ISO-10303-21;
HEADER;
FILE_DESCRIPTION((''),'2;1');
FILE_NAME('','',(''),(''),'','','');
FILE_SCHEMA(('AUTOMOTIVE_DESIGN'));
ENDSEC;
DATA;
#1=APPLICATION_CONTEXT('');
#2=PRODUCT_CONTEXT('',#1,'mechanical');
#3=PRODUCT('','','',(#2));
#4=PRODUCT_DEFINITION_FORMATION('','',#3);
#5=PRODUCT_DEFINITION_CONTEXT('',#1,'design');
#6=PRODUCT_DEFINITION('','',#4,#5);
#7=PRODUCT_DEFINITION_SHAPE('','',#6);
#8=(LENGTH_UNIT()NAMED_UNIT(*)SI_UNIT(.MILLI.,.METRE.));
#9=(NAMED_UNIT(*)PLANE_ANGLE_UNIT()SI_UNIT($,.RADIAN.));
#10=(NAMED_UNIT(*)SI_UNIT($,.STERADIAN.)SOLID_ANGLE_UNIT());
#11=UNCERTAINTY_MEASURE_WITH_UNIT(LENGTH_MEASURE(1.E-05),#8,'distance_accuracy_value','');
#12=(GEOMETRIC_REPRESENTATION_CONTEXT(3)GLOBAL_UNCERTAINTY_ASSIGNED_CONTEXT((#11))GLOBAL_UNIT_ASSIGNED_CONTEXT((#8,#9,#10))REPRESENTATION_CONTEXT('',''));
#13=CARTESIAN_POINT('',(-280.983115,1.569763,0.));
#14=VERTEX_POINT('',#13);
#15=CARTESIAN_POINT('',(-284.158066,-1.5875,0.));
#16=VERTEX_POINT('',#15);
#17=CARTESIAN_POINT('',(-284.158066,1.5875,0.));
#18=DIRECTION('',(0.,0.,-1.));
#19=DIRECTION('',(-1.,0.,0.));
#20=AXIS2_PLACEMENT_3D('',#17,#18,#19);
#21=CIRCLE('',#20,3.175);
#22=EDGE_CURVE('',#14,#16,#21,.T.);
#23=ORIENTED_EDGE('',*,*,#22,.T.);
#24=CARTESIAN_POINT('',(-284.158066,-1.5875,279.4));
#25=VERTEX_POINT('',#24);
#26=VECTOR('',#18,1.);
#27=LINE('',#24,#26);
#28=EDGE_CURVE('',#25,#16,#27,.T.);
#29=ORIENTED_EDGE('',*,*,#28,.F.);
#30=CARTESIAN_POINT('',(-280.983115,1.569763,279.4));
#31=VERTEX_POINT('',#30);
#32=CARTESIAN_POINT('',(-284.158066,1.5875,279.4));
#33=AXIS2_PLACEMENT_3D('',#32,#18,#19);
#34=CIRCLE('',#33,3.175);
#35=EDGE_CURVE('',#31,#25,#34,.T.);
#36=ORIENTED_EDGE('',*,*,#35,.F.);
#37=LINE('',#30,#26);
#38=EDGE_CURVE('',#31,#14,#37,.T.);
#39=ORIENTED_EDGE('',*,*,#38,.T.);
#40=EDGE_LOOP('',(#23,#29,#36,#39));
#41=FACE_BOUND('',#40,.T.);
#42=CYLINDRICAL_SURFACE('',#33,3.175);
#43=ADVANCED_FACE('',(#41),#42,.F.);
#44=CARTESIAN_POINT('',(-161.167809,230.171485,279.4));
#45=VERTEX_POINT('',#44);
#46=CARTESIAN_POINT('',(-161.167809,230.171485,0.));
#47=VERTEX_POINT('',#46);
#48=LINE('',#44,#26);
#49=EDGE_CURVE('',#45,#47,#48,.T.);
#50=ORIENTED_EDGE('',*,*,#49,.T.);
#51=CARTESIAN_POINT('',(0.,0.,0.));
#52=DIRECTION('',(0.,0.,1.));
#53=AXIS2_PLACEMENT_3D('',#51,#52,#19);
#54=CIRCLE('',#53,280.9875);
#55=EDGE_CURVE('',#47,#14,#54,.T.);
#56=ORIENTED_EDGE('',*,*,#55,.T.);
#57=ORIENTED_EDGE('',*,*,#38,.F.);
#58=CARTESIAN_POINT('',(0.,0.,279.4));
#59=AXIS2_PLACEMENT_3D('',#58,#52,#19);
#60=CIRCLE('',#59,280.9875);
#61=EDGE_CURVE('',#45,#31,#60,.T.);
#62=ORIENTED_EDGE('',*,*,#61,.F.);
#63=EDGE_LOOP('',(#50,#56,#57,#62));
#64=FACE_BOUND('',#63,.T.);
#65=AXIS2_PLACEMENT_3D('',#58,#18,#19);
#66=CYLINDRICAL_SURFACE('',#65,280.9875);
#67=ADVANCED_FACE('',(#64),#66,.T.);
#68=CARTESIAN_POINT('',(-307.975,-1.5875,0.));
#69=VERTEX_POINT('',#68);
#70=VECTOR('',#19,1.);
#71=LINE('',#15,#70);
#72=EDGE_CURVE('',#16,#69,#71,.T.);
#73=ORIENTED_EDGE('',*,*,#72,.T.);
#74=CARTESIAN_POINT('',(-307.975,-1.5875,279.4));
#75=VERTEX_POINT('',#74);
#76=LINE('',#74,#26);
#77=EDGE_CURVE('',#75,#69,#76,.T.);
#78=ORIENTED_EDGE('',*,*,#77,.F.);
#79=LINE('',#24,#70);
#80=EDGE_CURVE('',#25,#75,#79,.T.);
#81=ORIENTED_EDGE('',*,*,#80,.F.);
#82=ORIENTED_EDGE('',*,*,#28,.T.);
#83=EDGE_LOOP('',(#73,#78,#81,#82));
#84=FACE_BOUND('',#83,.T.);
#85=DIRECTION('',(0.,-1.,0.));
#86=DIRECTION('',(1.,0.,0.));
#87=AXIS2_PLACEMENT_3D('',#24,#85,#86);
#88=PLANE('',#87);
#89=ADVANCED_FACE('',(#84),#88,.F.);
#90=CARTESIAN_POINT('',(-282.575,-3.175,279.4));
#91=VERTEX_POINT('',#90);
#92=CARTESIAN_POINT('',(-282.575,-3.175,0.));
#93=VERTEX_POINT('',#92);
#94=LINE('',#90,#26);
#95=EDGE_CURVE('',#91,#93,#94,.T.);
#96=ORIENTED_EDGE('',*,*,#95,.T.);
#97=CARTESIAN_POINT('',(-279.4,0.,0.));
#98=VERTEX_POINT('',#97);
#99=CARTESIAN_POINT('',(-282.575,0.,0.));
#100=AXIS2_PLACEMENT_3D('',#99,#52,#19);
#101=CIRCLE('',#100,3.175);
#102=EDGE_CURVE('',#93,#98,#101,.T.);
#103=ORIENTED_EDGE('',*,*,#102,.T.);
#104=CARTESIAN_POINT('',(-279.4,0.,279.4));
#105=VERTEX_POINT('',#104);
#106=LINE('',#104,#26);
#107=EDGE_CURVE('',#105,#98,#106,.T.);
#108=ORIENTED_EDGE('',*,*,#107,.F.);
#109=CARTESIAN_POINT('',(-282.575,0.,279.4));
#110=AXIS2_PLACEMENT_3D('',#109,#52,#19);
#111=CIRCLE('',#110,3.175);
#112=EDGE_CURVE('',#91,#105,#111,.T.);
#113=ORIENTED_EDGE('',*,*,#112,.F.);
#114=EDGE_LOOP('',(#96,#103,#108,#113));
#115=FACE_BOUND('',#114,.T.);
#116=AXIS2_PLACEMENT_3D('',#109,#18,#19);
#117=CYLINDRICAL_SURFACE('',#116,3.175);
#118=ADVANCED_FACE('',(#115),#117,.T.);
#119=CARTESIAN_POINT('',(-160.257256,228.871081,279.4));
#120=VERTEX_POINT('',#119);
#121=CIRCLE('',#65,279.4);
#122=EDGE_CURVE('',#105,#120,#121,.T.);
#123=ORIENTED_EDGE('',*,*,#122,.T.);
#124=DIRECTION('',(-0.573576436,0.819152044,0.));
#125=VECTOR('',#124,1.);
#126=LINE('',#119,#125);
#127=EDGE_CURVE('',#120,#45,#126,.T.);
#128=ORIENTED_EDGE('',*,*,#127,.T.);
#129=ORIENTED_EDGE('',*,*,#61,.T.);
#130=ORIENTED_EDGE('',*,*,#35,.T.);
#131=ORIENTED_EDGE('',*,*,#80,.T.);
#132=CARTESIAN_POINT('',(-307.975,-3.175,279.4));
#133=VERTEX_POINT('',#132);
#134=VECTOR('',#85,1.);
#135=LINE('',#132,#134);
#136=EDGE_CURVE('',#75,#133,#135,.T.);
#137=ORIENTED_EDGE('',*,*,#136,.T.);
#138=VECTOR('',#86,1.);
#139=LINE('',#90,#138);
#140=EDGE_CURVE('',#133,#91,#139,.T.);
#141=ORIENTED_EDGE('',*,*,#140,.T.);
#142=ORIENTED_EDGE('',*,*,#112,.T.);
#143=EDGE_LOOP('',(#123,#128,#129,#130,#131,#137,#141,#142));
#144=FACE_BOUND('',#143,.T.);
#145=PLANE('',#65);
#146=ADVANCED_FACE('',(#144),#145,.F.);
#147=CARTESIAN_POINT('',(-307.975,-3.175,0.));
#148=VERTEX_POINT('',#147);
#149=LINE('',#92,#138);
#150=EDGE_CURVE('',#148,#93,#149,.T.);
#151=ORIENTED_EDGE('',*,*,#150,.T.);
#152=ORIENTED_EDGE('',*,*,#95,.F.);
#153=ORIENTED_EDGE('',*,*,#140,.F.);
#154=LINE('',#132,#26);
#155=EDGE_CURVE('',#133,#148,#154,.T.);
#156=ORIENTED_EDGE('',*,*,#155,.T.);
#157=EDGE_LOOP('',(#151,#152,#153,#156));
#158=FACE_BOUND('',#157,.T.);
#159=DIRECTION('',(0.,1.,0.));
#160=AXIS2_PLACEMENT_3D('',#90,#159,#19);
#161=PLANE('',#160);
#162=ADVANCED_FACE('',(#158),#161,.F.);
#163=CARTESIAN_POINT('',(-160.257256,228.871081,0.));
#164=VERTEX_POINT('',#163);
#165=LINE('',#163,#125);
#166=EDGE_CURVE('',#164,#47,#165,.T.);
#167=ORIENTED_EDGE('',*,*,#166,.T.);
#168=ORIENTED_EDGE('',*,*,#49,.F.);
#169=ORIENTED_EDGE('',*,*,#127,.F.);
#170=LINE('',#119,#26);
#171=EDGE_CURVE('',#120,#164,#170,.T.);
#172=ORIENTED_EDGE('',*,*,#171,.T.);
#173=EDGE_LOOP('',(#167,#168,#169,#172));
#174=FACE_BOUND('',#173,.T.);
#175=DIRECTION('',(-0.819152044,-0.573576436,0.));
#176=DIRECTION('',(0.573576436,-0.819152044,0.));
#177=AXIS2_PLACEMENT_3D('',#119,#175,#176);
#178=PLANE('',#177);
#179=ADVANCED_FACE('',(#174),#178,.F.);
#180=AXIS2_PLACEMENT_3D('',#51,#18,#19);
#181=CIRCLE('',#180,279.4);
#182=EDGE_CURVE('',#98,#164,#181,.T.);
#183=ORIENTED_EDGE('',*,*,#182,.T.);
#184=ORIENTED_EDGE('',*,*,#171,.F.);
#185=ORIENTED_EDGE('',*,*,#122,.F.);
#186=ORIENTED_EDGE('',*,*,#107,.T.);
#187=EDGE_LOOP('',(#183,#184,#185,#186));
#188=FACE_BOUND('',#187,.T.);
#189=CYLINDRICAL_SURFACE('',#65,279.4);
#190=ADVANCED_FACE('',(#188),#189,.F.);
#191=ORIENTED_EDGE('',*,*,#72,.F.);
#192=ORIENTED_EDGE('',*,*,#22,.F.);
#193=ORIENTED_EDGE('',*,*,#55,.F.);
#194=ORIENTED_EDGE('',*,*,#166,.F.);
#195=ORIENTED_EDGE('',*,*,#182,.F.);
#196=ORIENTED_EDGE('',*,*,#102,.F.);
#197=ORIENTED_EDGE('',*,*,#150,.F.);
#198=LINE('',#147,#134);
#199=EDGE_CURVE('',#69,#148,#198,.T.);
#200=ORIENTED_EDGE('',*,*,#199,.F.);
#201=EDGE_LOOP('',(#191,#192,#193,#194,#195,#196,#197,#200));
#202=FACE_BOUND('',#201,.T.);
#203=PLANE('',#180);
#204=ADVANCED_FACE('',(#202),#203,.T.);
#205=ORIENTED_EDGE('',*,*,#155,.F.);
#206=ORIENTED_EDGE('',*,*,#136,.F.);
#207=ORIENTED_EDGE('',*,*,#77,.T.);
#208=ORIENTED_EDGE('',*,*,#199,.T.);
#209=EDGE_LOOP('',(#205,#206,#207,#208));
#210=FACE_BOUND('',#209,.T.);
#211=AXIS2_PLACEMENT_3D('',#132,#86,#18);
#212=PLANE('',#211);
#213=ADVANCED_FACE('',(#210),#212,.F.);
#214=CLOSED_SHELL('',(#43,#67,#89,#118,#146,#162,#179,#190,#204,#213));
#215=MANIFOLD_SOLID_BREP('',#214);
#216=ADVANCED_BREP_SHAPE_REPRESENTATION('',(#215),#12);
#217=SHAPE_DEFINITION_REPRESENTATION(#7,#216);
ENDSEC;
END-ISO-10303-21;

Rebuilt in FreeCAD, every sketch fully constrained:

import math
import FreeCAD as App
import Part
import Sketcher
Q = App.Units.Quantity

doc = App.newDocument("Part")
params = doc.addObject("Spreadsheet::Sheet", "Params")
for row, (alias, value) in enumerate([
    ("sketch1_radius", "11 in"),
    ("sketch1_width", "1 in"),
    ("sketch1_radius2", "0.125 in"),
    ("sketch1_radius3", "11.0625 in"),
    ("sketch1_height", "0.0625 in"),
    ("pad1_length", "11 in"),
], start=1):
    params.set(f"A{row}", alias)
    params.set(f"B{row}", "=" + value)
    params.setAlias(f"B{row}", alias)

body = doc.addObject("PartDesign::Body", "Body")

sketch1 = body.newObject("Sketcher::SketchObject", "Sketch")
sketch1.AttachmentSupport = (doc.getObject("XY_Plane"), [""])
sketch1.MapMode = "FlatFace"
sketch1.addGeometry([
    Part.LineSegment(App.Vector(-284.158066, -1.5875, 0), App.Vector(-307.975, -1.5875, 0)),
    Part.LineSegment(App.Vector(-307.975, -1.5875, 0), App.Vector(-307.975, -3.175, 0)),
    Part.LineSegment(App.Vector(-307.975, -3.175, 0), App.Vector(-282.575, -3.175, 0)),
    Part.ArcOfCircle(Part.Circle(App.Vector(-282.575, 0, 0), App.Vector(0, 0, 1), 3.175), math.radians(-90), math.radians(0)),
    Part.ArcOfCircle(Part.Circle(App.Vector(0, 0, 0), App.Vector(0, 0, 1), 279.4), math.radians(125), math.radians(180)),
    Part.LineSegment(App.Vector(-160.257256, 228.871081, 0), App.Vector(-161.167809, 230.171485, 0)),
    Part.ArcOfCircle(Part.Circle(App.Vector(0, 0, 0), App.Vector(0, 0, 1), 280.9875), math.radians(125), math.radians(179.67991)),
    Part.ArcOfCircle(Part.Circle(App.Vector(-284.158066, 1.5875, 0), App.Vector(0, 0, 1), 3.175), math.radians(-90), math.radians(-0.32009)),
], False)
sketch1.addConstraint([
    Sketcher.Constraint("Coincident", 0, 2, 1, 1),
    Sketcher.Constraint("Coincident", 1, 2, 2, 1),
    Sketcher.Constraint("Tangent", 2, 2, 3, 1),
    Sketcher.Constraint("Tangent", 3, 2, 4, 2),
    Sketcher.Constraint("Coincident", 4, 1, 5, 1),
    Sketcher.Constraint("Coincident", 5, 2, 6, 1),
    Sketcher.Constraint("Tangent", 6, 2, 7, 2),
    Sketcher.Constraint("Tangent", 7, 1, 0, 1),
    Sketcher.Constraint("Horizontal", 0),
    Sketcher.Constraint("Vertical", 1),
    Sketcher.Constraint("Horizontal", 2),
    Sketcher.Constraint("Coincident", 4, 3, -1, 1),
    Sketcher.Constraint("Coincident", 6, 3, -1, 1),
    Sketcher.Constraint("Equal", 3, 7),
    Sketcher.Constraint("PointOnObject", 3, 3, -1),
    Sketcher.Constraint("Radius", 4, Q("11 in")),
    Sketcher.Constraint("DistanceX", 2, 1, 2, 2, Q("1 in")),
    Sketcher.Constraint("Angle", 5, Q("125 deg")),
    Sketcher.Constraint("Radius", 3, Q("0.125 in")),
    Sketcher.Constraint("Radius", 6, Q("11.0625 in")),
    Sketcher.Constraint("DistanceY", 1, 2, 1, 1, Q("0.0625 in")),
    Sketcher.Constraint("DistanceY", -1, 1, 4, 1, 228.871081),
])
sketch1.setExpression("Constraints[15]", "Params.sketch1_radius")
sketch1.setExpression("Constraints[16]", "Params.sketch1_width")
sketch1.setExpression("Constraints[18]", "Params.sketch1_radius2")
sketch1.setExpression("Constraints[19]", "Params.sketch1_radius3")
sketch1.setExpression("Constraints[20]", "Params.sketch1_height")
pad1 = body.newObject("PartDesign::Pad", "Pad")
pad1.Profile = sketch1
pad1.setExpression("Length", "Params.pad1_length")

doc.recompute()
